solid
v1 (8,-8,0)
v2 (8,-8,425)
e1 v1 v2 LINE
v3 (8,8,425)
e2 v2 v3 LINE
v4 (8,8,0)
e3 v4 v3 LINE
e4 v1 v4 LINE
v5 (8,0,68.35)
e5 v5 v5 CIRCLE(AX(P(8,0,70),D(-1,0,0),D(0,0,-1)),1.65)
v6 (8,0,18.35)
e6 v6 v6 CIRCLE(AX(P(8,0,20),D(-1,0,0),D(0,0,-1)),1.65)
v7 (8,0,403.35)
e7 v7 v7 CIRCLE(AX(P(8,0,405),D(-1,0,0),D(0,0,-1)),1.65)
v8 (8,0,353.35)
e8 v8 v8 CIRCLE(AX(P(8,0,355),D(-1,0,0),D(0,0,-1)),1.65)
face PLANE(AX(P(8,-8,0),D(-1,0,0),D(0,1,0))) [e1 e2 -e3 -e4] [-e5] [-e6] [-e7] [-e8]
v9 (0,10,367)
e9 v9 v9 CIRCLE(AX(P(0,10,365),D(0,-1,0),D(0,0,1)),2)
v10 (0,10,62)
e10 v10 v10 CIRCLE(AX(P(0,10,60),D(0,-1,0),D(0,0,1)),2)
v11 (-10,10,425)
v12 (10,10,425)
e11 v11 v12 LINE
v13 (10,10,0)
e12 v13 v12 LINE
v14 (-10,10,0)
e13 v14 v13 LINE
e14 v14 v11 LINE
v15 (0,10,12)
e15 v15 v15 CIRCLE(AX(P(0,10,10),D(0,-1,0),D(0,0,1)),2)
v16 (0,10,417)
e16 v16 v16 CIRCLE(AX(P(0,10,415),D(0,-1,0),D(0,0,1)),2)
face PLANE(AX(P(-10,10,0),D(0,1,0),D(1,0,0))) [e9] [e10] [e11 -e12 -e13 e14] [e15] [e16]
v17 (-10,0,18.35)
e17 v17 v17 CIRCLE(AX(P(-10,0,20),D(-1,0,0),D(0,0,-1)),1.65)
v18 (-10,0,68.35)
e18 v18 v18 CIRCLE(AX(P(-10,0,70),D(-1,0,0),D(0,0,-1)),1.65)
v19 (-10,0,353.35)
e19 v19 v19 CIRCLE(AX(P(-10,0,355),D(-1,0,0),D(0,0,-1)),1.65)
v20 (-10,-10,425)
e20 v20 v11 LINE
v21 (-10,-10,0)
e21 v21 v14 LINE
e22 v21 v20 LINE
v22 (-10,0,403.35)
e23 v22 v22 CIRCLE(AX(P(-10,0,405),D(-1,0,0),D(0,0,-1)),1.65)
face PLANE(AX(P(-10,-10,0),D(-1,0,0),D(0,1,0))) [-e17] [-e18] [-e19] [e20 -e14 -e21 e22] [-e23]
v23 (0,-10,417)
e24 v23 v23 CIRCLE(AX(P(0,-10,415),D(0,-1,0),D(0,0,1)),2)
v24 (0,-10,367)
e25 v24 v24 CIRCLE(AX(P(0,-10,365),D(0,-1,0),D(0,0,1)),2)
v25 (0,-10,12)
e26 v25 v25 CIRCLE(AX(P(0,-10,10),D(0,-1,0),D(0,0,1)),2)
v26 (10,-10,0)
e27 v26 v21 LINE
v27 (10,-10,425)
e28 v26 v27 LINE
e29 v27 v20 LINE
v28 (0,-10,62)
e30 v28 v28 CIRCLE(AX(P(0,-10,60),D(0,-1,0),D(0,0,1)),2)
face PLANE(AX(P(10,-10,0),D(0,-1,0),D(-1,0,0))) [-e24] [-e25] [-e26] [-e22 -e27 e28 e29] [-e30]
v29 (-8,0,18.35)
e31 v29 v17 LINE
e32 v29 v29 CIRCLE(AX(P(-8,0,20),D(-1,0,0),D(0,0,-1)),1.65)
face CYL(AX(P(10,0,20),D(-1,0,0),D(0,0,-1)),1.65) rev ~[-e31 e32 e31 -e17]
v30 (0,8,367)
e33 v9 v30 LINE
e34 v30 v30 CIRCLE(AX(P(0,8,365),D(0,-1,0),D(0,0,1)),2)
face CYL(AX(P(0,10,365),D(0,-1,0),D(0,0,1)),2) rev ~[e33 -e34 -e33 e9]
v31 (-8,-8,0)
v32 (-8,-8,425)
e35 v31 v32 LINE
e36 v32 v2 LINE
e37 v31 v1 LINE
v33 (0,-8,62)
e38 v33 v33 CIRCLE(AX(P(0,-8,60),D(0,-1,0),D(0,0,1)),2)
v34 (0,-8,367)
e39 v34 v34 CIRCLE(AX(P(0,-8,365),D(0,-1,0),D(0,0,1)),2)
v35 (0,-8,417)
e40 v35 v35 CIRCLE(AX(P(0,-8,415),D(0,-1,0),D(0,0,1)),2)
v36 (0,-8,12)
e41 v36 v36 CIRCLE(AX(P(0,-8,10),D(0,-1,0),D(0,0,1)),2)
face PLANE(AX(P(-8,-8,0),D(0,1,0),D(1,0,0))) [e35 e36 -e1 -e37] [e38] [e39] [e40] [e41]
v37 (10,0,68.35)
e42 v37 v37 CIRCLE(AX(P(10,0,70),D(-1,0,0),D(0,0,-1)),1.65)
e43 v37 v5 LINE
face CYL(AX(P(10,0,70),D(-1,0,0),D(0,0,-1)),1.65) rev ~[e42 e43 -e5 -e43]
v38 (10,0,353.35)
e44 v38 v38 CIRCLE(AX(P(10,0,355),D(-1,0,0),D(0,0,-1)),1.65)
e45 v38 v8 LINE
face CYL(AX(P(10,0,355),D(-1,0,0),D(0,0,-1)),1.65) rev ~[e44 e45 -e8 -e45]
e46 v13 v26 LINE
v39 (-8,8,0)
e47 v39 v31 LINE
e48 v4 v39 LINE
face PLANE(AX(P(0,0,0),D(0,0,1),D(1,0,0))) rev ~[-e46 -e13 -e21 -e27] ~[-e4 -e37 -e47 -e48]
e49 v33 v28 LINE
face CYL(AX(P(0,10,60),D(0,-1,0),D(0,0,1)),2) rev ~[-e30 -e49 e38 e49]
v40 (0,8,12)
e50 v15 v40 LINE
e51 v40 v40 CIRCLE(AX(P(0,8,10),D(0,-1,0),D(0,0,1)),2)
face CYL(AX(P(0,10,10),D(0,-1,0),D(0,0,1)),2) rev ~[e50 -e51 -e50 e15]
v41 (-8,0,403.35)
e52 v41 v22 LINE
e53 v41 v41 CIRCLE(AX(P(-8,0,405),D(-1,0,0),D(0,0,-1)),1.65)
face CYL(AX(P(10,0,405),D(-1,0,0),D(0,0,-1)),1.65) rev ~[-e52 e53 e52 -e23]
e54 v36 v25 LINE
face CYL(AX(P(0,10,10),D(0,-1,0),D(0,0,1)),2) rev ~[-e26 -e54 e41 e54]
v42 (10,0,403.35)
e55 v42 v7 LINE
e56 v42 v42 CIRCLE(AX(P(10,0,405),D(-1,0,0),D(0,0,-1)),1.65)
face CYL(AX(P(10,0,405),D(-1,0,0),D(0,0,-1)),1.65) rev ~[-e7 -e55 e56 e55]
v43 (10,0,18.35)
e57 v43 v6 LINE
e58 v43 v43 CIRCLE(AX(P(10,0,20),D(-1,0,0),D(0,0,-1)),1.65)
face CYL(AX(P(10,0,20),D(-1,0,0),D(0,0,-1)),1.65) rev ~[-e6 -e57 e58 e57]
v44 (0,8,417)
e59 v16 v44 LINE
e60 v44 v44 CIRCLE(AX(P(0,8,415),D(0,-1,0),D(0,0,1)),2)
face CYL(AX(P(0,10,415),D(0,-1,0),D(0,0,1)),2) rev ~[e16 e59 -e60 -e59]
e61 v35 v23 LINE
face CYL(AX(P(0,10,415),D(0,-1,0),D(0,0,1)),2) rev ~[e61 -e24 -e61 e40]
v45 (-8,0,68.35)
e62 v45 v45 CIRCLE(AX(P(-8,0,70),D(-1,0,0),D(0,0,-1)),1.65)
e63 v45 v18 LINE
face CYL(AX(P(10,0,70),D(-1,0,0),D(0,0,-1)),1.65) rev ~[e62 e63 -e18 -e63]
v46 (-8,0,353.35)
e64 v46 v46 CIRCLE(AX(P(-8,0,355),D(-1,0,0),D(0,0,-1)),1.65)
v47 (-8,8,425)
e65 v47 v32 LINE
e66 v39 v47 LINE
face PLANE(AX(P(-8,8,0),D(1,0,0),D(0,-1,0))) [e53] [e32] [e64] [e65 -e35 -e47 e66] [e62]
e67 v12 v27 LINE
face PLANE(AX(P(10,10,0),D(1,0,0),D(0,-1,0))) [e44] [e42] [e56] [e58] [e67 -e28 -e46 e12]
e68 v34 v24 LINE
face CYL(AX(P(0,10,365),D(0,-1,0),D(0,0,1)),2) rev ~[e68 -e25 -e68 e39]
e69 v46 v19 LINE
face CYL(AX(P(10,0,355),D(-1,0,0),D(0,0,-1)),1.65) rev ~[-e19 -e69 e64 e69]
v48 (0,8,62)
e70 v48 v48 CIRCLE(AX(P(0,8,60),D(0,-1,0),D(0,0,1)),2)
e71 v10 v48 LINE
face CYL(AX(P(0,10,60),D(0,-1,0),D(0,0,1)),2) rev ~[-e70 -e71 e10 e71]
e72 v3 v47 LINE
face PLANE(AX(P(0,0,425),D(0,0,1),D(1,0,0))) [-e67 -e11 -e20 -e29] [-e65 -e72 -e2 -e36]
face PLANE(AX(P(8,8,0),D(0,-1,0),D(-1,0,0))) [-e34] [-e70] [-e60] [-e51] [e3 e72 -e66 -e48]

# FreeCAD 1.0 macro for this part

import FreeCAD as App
import Part
import Sketcher

doc = App.newDocument("Part")
body = doc.addObject("PartDesign::Body", "Body")

# Sketch on XY plane
sketch1 = body.newObject("Sketcher::SketchObject", "Sketch")
sketch1.AttachmentSupport = (doc.getObject("XY_Plane"), [""])
sketch1.MapMode = "FlatFace"
sketch1.addGeometry([
    Part.LineSegment(App.Vector(-10, -10, 0), App.Vector(10, -10, 0)),  # 0
    Part.LineSegment(App.Vector(10, -10, 0), App.Vector(10, 10, 0)),  # 1
    Part.LineSegment(App.Vector(10, 10, 0), App.Vector(-10, 10, 0)),  # 2
    Part.LineSegment(App.Vector(-10, 10, 0), App.Vector(-10, -10, 0)),  # 3
    Part.LineSegment(App.Vector(-8, 8, 0), App.Vector(8, 8, 0)),  # 4
    Part.LineSegment(App.Vector(8, 8, 0), App.Vector(8, -8, 0)),  # 5
    Part.LineSegment(App.Vector(8, -8, 0), App.Vector(-8, -8, 0)),  # 6
    Part.LineSegment(App.Vector(-8, -8, 0), App.Vector(-8, 8, 0)),  # 7
], False)
sketch1.addConstraint([
    Sketcher.Constraint("Coincident", 0, 2, 1, 1),
    Sketcher.Constraint("Coincident", 1, 2, 2, 1),
    Sketcher.Constraint("Coincident", 2, 2, 3, 1),
    Sketcher.Constraint("Coincident", 3, 2, 0, 1),
    Sketcher.Constraint("Coincident", 4, 2, 5, 1),
    Sketcher.Constraint("Coincident", 5, 2, 6, 1),
    Sketcher.Constraint("Coincident", 6, 2, 7, 1),
    Sketcher.Constraint("Coincident", 7, 2, 4, 1),
    Sketcher.Constraint("Horizontal", 0),
    Sketcher.Constraint("Vertical", 1),
    Sketcher.Constraint("Horizontal", 2),
    Sketcher.Constraint("Vertical", 3),
    Sketcher.Constraint("Horizontal", 4),
    Sketcher.Constraint("Vertical", 5),
    Sketcher.Constraint("Horizontal", 6),
    Sketcher.Constraint("Vertical", 7),
    Sketcher.Constraint("Symmetric", 0, 2, 2, 2, -1, 1),
    Sketcher.Constraint("Symmetric", 4, 2, 6, 2, -1, 1),
    Sketcher.Constraint("Equal", 2, 1),
    Sketcher.Constraint("Equal", 6, 5),
    Sketcher.Constraint("DistanceX", 0, 1, 0, 2, 20.0),
    Sketcher.Constraint("DistanceX", 4, 2, 1, 2, 2.0),
])
pad1 = body.newObject("PartDesign::Pad", "Pad")
pad1.Profile = sketch1
pad1.Length = 425

# Sketch on XZ plane
sketch2 = body.newObject("Sketcher::SketchObject", "Sketch001")
sketch2.AttachmentSupport = (doc.getObject("XZ_Plane"), [""])
sketch2.MapMode = "FlatFace"
sketch2.AttachmentOffset = App.Placement(App.Vector(0, 0, -10), App.Rotation())
sketch2.addGeometry([
    Part.Circle(App.Vector(0, 415, 0), App.Vector(0, 0, 1), 2),
    Part.Circle(App.Vector(0, 365, 0), App.Vector(0, 0, 1), 2),
    Part.Circle(App.Vector(0, 60, 0), App.Vector(0, 0, 1), 2),
    Part.Circle(App.Vector(0, 10, 0), App.Vector(0, 0, 1), 2),
], False)
sketch2.addConstraint([
    Sketcher.Constraint("Equal", 0, 1),
    Sketcher.Constraint("Equal", 1, 2),
    Sketcher.Constraint("Equal", 2, 3),
    Sketcher.Constraint("PointOnObject", 0, 3, -2),
    Sketcher.Constraint("PointOnObject", 1, 3, -2),
    Sketcher.Constraint("PointOnObject", 2, 3, -2),
    Sketcher.Constraint("PointOnObject", 3, 3, -2),
    Sketcher.Constraint("Diameter", 0, 4.0),
    Sketcher.Constraint("DistanceY", -1, 1, 0, 3, 415.0),
    Sketcher.Constraint("DistanceY", -1, 1, 1, 3, 365.0),
    Sketcher.Constraint("DistanceY", -1, 1, 2, 3, 60.0),
    Sketcher.Constraint("DistanceY", -1, 1, 3, 3, 10.0),
])
doc.recompute()
hole = body.newObject("PartDesign::Hole", "Hole")
hole.Profile = sketch2
hole.ThreadType = "None"
hole.Diameter = 4
hole.DepthType = "ThroughAll"
hole.Reversed = True

# Sketch on YZ plane
sketch3 = body.newObject("Sketcher::SketchObject", "Sketch002")
sketch3.AttachmentSupport = (doc.getObject("YZ_Plane"), [""])
sketch3.MapMode = "FlatFace"
sketch3.AttachmentOffset = App.Placement(App.Vector(0, 0, 10), App.Rotation())
sketch3.addGeometry([
    Part.Circle(App.Vector(0, 405, 0), App.Vector(0, 0, 1), 1.6),
    Part.Circle(App.Vector(0, 355, 0), App.Vector(0, 0, 1), 1.6),
    Part.Circle(App.Vector(0, 20, 0), App.Vector(0, 0, 1), 1.6),
    Part.Circle(App.Vector(0, 70, 0), App.Vector(0, 0, 1), 1.6),
], False)
sketch3.addConstraint([
    Sketcher.Constraint("Equal", 0, 1),
    Sketcher.Constraint("Equal", 1, 2),
    Sketcher.Constraint("Equal", 2, 3),
    Sketcher.Constraint("PointOnObject", 0, 3, -2),
    Sketcher.Constraint("PointOnObject", 1, 3, -2),
    Sketcher.Constraint("PointOnObject", 2, 3, -2),
    Sketcher.Constraint("PointOnObject", 3, 3, -2),
    Sketcher.Constraint("Diameter", 0, 3.3),
    Sketcher.Constraint("DistanceY", -1, 1, 0, 3, 405.0),
    Sketcher.Constraint("DistanceY", -1, 1, 1, 3, 355.0),
    Sketcher.Constraint("DistanceY", -1, 1, 2, 3, 20.0),
    Sketcher.Constraint("DistanceY", -1, 1, 3, 3, 70.0),
])
doc.recompute()
hole2 = body.newObject("PartDesign::Hole", "Hole001")
hole2.Profile = sketch3
hole2.ThreadType = "None"
hole2.Diameter = 3.3
hole2.DepthType = "ThroughAll"

doc.recompute()
